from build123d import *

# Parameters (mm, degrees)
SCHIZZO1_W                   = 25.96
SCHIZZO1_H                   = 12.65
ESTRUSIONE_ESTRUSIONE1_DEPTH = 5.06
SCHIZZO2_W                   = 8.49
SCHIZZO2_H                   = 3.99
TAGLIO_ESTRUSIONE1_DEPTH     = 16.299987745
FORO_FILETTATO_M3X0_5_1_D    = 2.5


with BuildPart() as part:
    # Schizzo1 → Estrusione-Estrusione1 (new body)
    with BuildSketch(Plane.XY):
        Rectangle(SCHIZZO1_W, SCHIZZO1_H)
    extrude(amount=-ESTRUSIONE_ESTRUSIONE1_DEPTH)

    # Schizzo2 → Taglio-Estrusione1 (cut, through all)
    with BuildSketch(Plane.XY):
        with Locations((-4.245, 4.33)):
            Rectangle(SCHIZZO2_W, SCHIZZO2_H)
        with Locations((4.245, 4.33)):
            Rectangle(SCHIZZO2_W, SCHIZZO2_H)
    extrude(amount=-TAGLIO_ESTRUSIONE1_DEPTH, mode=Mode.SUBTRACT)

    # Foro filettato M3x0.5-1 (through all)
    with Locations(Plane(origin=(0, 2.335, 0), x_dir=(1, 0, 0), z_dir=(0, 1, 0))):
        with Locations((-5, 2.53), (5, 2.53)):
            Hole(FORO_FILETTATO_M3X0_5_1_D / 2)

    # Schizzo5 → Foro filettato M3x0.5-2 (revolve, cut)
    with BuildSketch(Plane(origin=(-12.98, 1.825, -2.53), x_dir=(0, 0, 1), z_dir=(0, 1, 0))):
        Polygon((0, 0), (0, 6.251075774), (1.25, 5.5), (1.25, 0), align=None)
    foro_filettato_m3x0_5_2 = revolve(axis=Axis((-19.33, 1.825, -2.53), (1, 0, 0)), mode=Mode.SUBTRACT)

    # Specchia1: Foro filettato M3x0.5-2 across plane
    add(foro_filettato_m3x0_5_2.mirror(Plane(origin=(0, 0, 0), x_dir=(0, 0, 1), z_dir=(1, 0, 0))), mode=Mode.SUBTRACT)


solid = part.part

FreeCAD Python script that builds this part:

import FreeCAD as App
import Part
import Sketcher

V = App.Vector
Q = App.Units.Quantity


def add_polygon(sketch, points):
    """Adds a closed chain of lines whose ends are joined by coincident constraints."""
    first, n = sketch.GeometryCount, len(points)
    for a, b in zip(points, points[1:] + points[:1]):
        sketch.addGeometry(Part.LineSegment(App.Vector(*a, 0), App.Vector(*b, 0)), False)
    for i in range(n):
        sketch.addConstraint(Sketcher.Constraint("Coincident", first + i, 2, first + (i + 1) % n, 1))

doc = App.newDocument("Part")
params = doc.addObject("Spreadsheet::Sheet", "Params")
for row, (alias, value) in enumerate([
    ("sketch1_width", "25.96 mm"),
    ("sketch1_height", "12.65 mm"),
    ("pad1_length", "5.06 mm"),
    ("sketch2_width", "16.98 mm"),
    ("sketch2_height", "3.99 mm"),
    ("sketch3_diameter", "2.5 mm"),
    ("hole_diameter", "2.5 mm"),
    ("sketch4_width", "5.5 mm"),
    ("sketch4_height", "1.25 mm"),
    ("groove_angle", "360 deg"),
], start=1):
    params.set(f"A{row}", alias)
    params.set(f"B{row}", "=" + value)
    params.setAlias(f"B{row}", alias)

body = doc.addObject("PartDesign::Body", "Body")

sketch1 = body.newObject("Sketcher::SketchObject", "Sketch")
sketch1.AttachmentSupport = (doc.getObject("XY_Plane"), [""])
sketch1.MapMode = "FlatFace"
add_polygon(sketch1, [(-12.98, 6.325), (-12.98, -6.325), (12.98, -6.325), (12.98, 6.325)])
sketch1.addConstraint([
    Sketcher.Constraint("Vertical", 0),
    Sketcher.Constraint("Horizontal", 1),
    Sketcher.Constraint("Vertical", 2),
    Sketcher.Constraint("Horizontal", 3),
    Sketcher.Constraint("Symmetric", 0, 2, 2, 2, -1, 1),
    Sketcher.Constraint("DistanceX", 1, 1, 1, 2, 25.96),
    Sketcher.Constraint("DistanceY", 0, 2, 0, 1, 12.65),
])
sketch1.setExpression("Constraints[9]", "Params.sketch1_width")
sketch1.setExpression("Constraints[10]", "Params.sketch1_height")
pad1 = body.newObject("PartDesign::Pad", "Pad")
pad1.Profile = sketch1
pad1.setExpression("Length", "Params.pad1_length")
pad1.Reversed = True

sketch2 = body.newObject("Sketcher::SketchObject", "Sketch001")
sketch2.AttachmentSupport = (doc.getObject("XY_Plane"), [""])
sketch2.MapMode = "FlatFace"
add_polygon(sketch2, [(-8.49, 6.325), (-8.49, 2.335), (8.49, 2.335), (8.49, 6.325)])
sketch2.addConstraint([
    Sketcher.Constraint("Vertical", 0),
    Sketcher.Constraint("Horizontal", 1),
    Sketcher.Constraint("Vertical", 2),
    Sketcher.Constraint("Horizontal", 3),
    Sketcher.Constraint("DistanceX", 1, 1, 1, 2, 16.98),
    Sketcher.Constraint("DistanceY", 0, 2, 0, 1, 3.99),
    Sketcher.Constraint("DistanceX", 0, 2, -1, 1, 8.49),
    Sketcher.Constraint("DistanceY", -1, 1, 0, 2, 2.335),
])
sketch2.setExpression("Constraints[8]", "Params.sketch2_width")
sketch2.setExpression("Constraints[9]", "Params.sketch2_height")
pocket1 = body.newObject("PartDesign::Pocket", "Pocket")
pocket1.Profile = sketch2
pocket1.Type = "ThroughAll"

sketch3 = body.newObject("Sketcher::SketchObject", "Sketch002")
sketch3.AttachmentSupport = (doc.getObject("XZ_Plane"), [""])
sketch3.MapMode = "FlatFace"
sketch3.AttachmentOffset = App.Placement(V(0, 0, -2.335), App.Rotation())
sketch3.addGeometry([
    Part.Circle(V(-5, -2.53, 0), V(0, 0, 1), 1.25),
    Part.Circle(V(5, -2.53, 0), V(0, 0, 1), 1.25),
], False)
sketch3.addConstraint([
    Sketcher.Constraint("Equal", 0, 1),
    Sketcher.Constraint("Symmetric", 0, 3, 1, 3, -2),
    Sketcher.Constraint("Diameter", 0, 2.5),
    Sketcher.Constraint("DistanceX", 0, 3, -1, 1, 5.0),
    Sketcher.Constraint("DistanceY", 0, 3, -1, 1, 2.53),
])
sketch3.setExpression("Constraints[2]", "Params.sketch3_diameter")
doc.recompute()
hole = body.newObject("PartDesign::Hole", "Hole")
hole.Profile = sketch3
hole.ThreadType = "None"
hole.setExpression("Diameter", "Params.hole_diameter")
hole.DepthType = "ThroughAll"
hole.Reversed = True

sketch4 = body.newObject("Sketcher::SketchObject", "Sketch003")
sketch4.AttachmentSupport = (doc.getObject("XZ_Plane"), [""])
sketch4.MapMode = "FlatFace"
sketch4.AttachmentOffset = App.Placement(V(0, 0, -1.825), App.Rotation())
add_polygon(sketch4, [(-6.728924, -2.53), (-12.98, -2.53), (-12.98, -1.28), (-7.48, -1.28)])
sketch4.addGeometry(Part.LineSegment(V(-12.98, -2.53, 0), V(-6.728924, -2.53, 0)), True)
sketch4.addConstraint([
    Sketcher.Constraint("Horizontal", 0),
    Sketcher.Constraint("Vertical", 1),
    Sketcher.Constraint("Horizontal", 2),
    Sketcher.Constraint("Horizontal", 4),
    Sketcher.Constraint("Coincident", 4, 1, 0, 2),
    Sketcher.Constraint("Equal", 0, 4),
    Sketcher.Constraint("Angle", 3, Q("-59 deg")),
    Sketcher.Constraint("DistanceX", 2, 1, 2, 2, 5.5),
    Sketcher.Constraint("DistanceY", 1, 1, 1, 2, 1.25),
    Sketcher.Constraint("DistanceX", 0, 2, -1, 1, 12.98),
    Sketcher.Constraint("DistanceY", 0, 2, -1, 1, 2.53),
])
sketch4.setExpression("Constraints[11]", "Params.sketch4_width")
sketch4.setExpression("Constraints[12]", "Params.sketch4_height")
groove = body.newObject("PartDesign::Groove", "Groove")
groove.Profile = sketch4
groove.ReferenceAxis = (sketch4, ["Axis0"])
groove.setExpression("Angle", "Params.groove_angle")
doc.recompute()

mirrored = body.newObject("PartDesign::Mirrored", "Mirrored")
mirrored.Originals = [groove]
mirrored.MirrorPlane = (doc.getObject("YZ_Plane"), [""])
body.Tip = mirrored

doc.recompute()
